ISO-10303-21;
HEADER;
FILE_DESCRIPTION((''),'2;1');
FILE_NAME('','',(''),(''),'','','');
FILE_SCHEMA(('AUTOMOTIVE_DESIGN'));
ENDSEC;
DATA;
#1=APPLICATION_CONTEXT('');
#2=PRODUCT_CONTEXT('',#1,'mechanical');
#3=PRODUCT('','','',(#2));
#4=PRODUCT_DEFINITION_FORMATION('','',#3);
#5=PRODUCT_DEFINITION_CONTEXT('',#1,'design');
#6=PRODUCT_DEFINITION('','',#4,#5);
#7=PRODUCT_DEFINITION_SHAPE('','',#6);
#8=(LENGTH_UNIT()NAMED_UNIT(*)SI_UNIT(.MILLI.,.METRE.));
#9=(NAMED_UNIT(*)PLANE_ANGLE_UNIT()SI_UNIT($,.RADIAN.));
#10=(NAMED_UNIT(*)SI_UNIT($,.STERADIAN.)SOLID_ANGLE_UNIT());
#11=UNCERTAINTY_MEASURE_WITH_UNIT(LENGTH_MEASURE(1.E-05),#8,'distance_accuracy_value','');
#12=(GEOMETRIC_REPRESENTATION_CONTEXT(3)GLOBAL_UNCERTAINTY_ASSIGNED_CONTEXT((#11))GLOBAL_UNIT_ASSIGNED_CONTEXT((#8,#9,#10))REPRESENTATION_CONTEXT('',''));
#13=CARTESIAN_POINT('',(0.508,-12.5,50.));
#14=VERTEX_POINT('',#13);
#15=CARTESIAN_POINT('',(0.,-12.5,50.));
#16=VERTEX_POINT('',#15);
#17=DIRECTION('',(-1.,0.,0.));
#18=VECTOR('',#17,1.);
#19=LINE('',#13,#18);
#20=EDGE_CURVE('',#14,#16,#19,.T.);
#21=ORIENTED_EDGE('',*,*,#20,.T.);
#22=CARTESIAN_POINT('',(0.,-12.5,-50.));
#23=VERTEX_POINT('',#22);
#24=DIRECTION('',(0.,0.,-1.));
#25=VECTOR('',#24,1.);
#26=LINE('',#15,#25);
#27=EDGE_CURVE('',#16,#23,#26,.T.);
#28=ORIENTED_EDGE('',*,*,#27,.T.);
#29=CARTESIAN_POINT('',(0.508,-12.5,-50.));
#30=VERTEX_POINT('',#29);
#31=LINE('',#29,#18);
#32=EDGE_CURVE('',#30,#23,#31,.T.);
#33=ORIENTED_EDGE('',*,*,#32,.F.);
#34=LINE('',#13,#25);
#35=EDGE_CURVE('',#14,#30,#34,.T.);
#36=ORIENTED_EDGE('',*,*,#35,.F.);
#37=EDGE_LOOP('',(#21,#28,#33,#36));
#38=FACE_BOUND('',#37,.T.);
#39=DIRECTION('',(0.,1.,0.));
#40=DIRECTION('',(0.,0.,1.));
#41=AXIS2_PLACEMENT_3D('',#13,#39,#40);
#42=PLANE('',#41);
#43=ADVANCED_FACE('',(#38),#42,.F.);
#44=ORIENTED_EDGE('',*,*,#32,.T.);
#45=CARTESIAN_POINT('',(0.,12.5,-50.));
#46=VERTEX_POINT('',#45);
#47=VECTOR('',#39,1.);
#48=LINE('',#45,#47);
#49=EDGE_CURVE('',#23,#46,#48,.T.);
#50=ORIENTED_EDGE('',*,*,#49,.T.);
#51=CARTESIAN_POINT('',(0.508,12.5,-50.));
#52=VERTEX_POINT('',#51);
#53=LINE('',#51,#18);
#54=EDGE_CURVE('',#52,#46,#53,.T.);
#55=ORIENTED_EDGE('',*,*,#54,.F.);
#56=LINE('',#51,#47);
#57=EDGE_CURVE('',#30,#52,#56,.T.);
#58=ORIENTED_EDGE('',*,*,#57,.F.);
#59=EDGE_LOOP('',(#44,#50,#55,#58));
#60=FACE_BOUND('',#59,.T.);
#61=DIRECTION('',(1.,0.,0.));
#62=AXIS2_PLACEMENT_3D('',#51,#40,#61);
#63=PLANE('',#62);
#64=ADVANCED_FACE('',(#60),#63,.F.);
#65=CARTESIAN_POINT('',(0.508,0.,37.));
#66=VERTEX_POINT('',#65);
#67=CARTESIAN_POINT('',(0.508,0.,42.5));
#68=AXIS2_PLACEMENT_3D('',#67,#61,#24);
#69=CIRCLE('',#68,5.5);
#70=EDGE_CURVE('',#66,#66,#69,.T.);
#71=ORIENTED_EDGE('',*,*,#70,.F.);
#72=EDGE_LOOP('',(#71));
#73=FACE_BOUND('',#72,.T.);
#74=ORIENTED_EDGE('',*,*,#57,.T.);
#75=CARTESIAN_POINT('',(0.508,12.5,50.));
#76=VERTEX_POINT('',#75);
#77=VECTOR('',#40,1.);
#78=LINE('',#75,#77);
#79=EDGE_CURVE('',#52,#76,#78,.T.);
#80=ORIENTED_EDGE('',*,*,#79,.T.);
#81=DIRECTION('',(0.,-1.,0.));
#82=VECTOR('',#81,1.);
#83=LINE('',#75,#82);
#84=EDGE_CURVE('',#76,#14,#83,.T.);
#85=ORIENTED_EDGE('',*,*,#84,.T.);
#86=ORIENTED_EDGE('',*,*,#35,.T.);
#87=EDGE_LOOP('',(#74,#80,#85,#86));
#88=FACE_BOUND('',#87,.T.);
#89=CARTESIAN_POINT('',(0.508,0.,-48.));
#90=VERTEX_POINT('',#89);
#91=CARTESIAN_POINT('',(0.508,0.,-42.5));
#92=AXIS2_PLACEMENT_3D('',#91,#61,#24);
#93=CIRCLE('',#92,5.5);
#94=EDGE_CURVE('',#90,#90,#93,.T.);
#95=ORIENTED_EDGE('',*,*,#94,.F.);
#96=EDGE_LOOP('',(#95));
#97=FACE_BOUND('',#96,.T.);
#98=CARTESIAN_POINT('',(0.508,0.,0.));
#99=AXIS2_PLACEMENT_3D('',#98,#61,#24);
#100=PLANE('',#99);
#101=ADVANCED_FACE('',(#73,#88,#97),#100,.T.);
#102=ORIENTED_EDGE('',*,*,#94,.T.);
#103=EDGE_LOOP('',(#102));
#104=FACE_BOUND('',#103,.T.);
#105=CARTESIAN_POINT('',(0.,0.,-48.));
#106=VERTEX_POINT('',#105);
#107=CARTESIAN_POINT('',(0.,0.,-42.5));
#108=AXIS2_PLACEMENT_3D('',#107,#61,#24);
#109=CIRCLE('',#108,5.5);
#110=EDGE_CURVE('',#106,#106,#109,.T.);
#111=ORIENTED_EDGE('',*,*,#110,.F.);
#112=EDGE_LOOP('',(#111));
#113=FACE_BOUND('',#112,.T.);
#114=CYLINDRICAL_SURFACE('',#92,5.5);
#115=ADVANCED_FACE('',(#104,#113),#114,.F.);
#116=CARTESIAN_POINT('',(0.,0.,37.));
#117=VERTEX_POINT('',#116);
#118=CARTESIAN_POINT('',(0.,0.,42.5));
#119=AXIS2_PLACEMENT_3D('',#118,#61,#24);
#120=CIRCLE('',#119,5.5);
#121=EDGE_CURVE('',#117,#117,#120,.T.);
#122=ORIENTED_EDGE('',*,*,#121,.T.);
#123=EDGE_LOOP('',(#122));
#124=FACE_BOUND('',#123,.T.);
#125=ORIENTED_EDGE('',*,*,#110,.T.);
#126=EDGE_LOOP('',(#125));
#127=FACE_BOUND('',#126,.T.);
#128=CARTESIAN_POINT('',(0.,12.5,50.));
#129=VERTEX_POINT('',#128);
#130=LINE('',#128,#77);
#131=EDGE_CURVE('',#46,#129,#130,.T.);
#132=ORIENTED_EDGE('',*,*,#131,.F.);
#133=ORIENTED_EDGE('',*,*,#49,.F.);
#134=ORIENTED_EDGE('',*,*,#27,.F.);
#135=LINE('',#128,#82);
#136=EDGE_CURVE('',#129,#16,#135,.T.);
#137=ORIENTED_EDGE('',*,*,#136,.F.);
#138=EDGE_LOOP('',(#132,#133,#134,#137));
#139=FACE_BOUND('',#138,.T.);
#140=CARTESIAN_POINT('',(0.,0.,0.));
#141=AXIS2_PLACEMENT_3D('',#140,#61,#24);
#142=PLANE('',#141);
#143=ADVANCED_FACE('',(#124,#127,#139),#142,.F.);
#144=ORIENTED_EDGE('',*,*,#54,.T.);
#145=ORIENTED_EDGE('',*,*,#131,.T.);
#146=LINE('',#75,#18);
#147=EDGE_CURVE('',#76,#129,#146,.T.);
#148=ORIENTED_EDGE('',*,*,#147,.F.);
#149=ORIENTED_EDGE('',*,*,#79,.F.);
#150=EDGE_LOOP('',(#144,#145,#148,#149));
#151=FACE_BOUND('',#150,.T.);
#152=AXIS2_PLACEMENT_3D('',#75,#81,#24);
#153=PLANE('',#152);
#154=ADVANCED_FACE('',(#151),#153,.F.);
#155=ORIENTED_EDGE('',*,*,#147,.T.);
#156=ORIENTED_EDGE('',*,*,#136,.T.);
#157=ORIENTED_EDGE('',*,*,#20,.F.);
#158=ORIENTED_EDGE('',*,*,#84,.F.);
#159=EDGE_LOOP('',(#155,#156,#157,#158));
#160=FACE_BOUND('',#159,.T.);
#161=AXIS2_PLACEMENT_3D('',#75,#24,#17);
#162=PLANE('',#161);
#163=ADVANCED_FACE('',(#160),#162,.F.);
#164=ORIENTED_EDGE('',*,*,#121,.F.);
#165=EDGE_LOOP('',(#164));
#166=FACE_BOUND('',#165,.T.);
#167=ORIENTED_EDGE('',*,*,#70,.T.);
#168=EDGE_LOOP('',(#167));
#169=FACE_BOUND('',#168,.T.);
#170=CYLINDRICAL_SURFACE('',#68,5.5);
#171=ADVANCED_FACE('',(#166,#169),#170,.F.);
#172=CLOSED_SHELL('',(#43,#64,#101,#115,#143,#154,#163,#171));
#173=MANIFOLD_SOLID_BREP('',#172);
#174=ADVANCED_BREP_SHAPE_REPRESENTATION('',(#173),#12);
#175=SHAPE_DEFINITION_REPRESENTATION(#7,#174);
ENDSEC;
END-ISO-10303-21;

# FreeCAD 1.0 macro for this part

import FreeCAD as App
import Part
import Sketcher

V = App.Vector
Q = App.Units.Quantity

doc = App.newDocument("Part")
body = doc.addObject("PartDesign::Body", "Body")

# Sketch on YZ plane
sketch1 = body.newObject("Sketcher::SketchObject", "Sketch")
sketch1.AttachmentSupport = (doc.getObject("YZ_Plane"), [""])
sketch1.MapMode = "FlatFace"
sketch1.addGeometry(Part.LineSegment(V(12.5, 50, 0), V(-12.5, 50, 0)), False)
sketch1.addGeometry(Part.LineSegment(V(-12.5, 50, 0), V(-12.5, -50, 0)), False)
sketch1.addGeometry(Part.LineSegment(V(-12.5, -50, 0), V(12.5, -50, 0)), False)
sketch1.addGeometry(Part.LineSegment(V(12.5, -50, 0), V(12.5, 50, 0)), False)
sketch1.addConstraint(Sketcher.Constraint("Coincident", 0, 2, 1, 1))
sketch1.addConstraint(Sketcher.Constraint("Coincident", 1, 2, 2, 1))
sketch1.addConstraint(Sketcher.Constraint("Coincident", 2, 2, 3, 1))
sketch1.addConstraint(Sketcher.Constraint("Coincident", 3, 2, 0, 1))
sketch1.addConstraint(Sketcher.Constraint("Horizontal", 0))
sketch1.addConstraint(Sketcher.Constraint("Vertical", 1))
sketch1.addConstraint(Sketcher.Constraint("Horizontal", 2))
sketch1.addConstraint(Sketcher.Constraint("Vertical", 3))
sketch1.addConstraint(Sketcher.Constraint("Symmetric", 0, 2, 2, 2, -1, 1))
sketch1.addConstraint(Sketcher.Constraint("DistanceX", 0, 2, 0, 1, Q("25 mm")))
sketch1.addConstraint(Sketcher.Constraint("DistanceY", 1, 2, 1, 1, Q("100 mm")))
pad1 = body.newObject("PartDesign::Pad", "Pad")
pad1.Profile = sketch1
pad1.Length = 0.508

# Sketch on YZ plane
sketch2 = body.newObject("Sketcher::SketchObject", "Sketch001")
sketch2.AttachmentSupport = (doc.getObject("YZ_Plane"), [""])
sketch2.MapMode = "FlatFace"
sketch2.AttachmentOffset = App.Placement(V(0, 0, 0.508), App.Rotation())
sketch2.addGeometry(Part.Circle(V(0, 42.5, 0), V(0, 0, 1), 5.5), False)
sketch2.addGeometry(Part.Circle(V(0, -42.5, 0), V(0, 0, 1), 5.5), False)
sketch2.addConstraint(Sketcher.Constraint("Equal", 0, 1))
sketch2.addConstraint(Sketcher.Constraint("Symmetric", 0, 3, 1, 3, -1, 1))
sketch2.addConstraint(Sketcher.Constraint("PointOnObject", 0, 3, -2))
sketch2.addConstraint(Sketcher.Constraint("Diameter", 0, Q("11 mm")))
sketch2.addConstraint(Sketcher.Constraint("DistanceY", 1, 3, 0, 3, Q("85 mm")))
doc.recompute()
hole = body.newObject("PartDesign::Hole", "Hole")
hole.Profile = sketch2
hole.ThreadType = "None"
hole.Diameter = 11
hole.DepthType = "ThroughAll"

doc.recompute()
